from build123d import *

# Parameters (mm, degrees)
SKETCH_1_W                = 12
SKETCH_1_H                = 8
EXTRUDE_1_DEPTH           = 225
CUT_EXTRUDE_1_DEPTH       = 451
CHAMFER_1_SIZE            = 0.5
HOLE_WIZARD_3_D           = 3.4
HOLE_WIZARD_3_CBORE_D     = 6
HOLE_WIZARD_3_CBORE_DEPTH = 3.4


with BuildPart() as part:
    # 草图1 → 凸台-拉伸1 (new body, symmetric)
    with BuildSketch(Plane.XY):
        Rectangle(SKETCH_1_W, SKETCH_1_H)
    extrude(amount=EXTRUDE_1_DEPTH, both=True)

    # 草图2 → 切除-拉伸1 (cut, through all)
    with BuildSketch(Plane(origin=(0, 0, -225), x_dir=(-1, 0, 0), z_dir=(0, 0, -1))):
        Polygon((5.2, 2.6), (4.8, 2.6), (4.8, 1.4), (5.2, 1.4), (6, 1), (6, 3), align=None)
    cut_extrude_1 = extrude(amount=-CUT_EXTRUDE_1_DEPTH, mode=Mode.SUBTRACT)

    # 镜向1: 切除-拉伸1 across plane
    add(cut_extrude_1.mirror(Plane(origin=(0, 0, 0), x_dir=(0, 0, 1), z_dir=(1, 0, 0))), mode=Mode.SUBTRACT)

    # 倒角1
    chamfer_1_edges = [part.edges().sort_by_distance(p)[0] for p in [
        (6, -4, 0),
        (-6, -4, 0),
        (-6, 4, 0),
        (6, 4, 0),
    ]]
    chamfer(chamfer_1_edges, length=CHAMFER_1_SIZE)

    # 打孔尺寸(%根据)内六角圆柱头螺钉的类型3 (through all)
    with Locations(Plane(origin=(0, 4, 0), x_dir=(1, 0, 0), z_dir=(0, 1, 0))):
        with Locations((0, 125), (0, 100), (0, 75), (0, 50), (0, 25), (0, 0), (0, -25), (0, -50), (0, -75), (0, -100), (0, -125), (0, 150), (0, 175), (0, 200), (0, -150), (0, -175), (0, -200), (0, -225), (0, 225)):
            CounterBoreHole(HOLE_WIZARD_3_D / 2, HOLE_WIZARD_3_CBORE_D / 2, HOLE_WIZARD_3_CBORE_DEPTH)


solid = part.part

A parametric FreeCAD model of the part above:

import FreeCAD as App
import Part
import Sketcher
from FreeCAD import Vector


def edges_at(feature, points):
    """Names of the edges that pass closest to the given points."""
    edges = feature.Shape.Edges
    near = lambda p: min(range(len(edges)), key=lambda i: edges[i].distToShape(Part.Vertex(*p))[0])
    return sorted({f"Edge{near(p) + 1}" for p in points})

doc = App.newDocument("Part")
body = doc.addObject("PartDesign::Body", "Body")

# Sketch on XY plane
sketch1 = body.newObject("Sketcher::SketchObject", "Sketch")
sketch1.AttachmentSupport = (doc.getObject("XY_Plane"), [""])
sketch1.MapMode = "FlatFace"
sketch1.addGeometry([
    Part.LineSegment(Vector(-6, 4, 0), Vector(-6, -4, 0)),
    Part.LineSegment(Vector(-6, -4, 0), Vector(6, -4, 0)),
    Part.LineSegment(Vector(6, -4, 0), Vector(6, 4, 0)),
    Part.LineSegment(Vector(6, 4, 0), Vector(-6, 4, 0)),
], False)
sketch1.addConstraint([
    Sketcher.Constraint("Coincident", 0, 2, 1, 1),
    Sketcher.Constraint("Coincident", 1, 2, 2, 1),
    Sketcher.Constraint("Coincident", 2, 2, 3, 1),
    Sketcher.Constraint("Coincident", 3, 2, 0, 1),
    Sketcher.Constraint("Vertical", 0),
    Sketcher.Constraint("Horizontal", 1),
    Sketcher.Constraint("Vertical", 2),
    Sketcher.Constraint("Horizontal", 3),
    Sketcher.Constraint("Symmetric", 0, 2, 2, 2, -1, 1),
    Sketcher.Constraint("DistanceX", 1, 1, 1, 2, 12.0),
    Sketcher.Constraint("DistanceY", 0, 2, 0, 1, 8.0),
])
pad1 = body.newObject("PartDesign::Pad", "Pad")
pad1.Profile = sketch1
pad1.Length = 450
pad1.Midplane = True

# Sketch on XY plane
sketch2 = body.newObject("Sketcher::SketchObject", "Sketch001")
sketch2.AttachmentSupport = (doc.getObject("XY_Plane"), [""])
sketch2.MapMode = "FlatFace"
sketch2.AttachmentOffset = App.Placement(Vector(0, 0, -225), App.Rotation())
sketch2.addGeometry([
    Part.LineSegment(Vector(-5.2, 2.6, 0), Vector(-4.8, 2.6, 0)),  # 0
    Part.LineSegment(Vector(-4.8, 2.6, 0), Vector(-4.8, 1.4, 0)),  # 1
    Part.LineSegment(Vector(-4.8, 1.4, 0), Vector(-5.2, 1.4, 0)),  # 2
    Part.LineSegment(Vector(-5.2, 1.4, 0), Vector(-6, 1, 0)),  # 3
    Part.LineSegment(Vector(-6, 1, 0), Vector(-6, 3, 0)),  # 4
    Part.LineSegment(Vector(-6, 3, 0), Vector(-5.2, 2.6, 0)),  # 5
], False)
sketch2.addConstraint([
    Sketcher.Constraint("Coincident", 0, 2, 1, 1),
    Sketcher.Constraint("Coincident", 1, 2, 2, 1),
    Sketcher.Constraint("Coincident", 2, 2, 3, 1),
    Sketcher.Constraint("Coincident", 3, 2, 4, 1),
    Sketcher.Constraint("Coincident", 4, 2, 5, 1),
    Sketcher.Constraint("Coincident", 5, 2, 0, 1),
    Sketcher.Constraint("Horizontal", 0),
    Sketcher.Constraint("Vertical", 1),
    Sketcher.Constraint("Horizontal", 2),
    Sketcher.Constraint("Vertical", 4),
    Sketcher.Constraint("Vertical", 2, 2, 5, 2),
    Sketcher.Constraint("Equal", 3, 5),
    Sketcher.Constraint("DistanceY", 4, 1, 4, 2, 2.0),
    Sketcher.Constraint("DistanceX", 0, 1, 0, 2, 0.4),
    Sketcher.Constraint("DistanceY", 1, 2, 1, 1, 1.2),
    Sketcher.Constraint("DistanceX", 3, 2, -1, 1, 6.0),
    Sketcher.Constraint("DistanceY", -1, 1, 3, 2, 1.0),
    Sketcher.Constraint("DistanceX", 0, 2, -1, 1, 4.8),
])
pocket1 = body.newObject("PartDesign::Pocket", "Pocket")
pocket1.Profile = sketch2
pocket1.Type = "ThroughAll"
pocket1.Reversed = True
doc.recompute()

mirrored = body.newObject("PartDesign::Mirrored", "Mirrored")
mirrored.Originals = [pocket1]
mirrored.MirrorPlane = (doc.getObject("YZ_Plane"), [""])
body.Tip = mirrored
doc.recompute()

chamfer = body.newObject("PartDesign::Chamfer", "Chamfer")
chamfer.Base = (mirrored, edges_at(mirrored, [
    (6, -4, 0),
    (-6, -4, 0),
    (-6, 4, 0),
    (6, 4, 0),
]))
chamfer.Size = 0.5

# Sketch on XZ plane
sketch3 = body.newObject("Sketcher::SketchObject", "Sketch002")
sketch3.AttachmentSupport = (doc.getObject("XZ_Plane"), [""])
sketch3.MapMode = "FlatFace"
sketch3.AttachmentOffset = App.Placement(Vector(0, 0, -4), App.Rotation())
sketch3.addGeometry([
    Part.Circle(Vector(0, -125, 0), Vector(0, 0, 1), 1.7),  # 0
    Part.Circle(Vector(0, -100, 0), Vector(0, 0, 1), 1.7),  # 1
    Part.Circle(Vector(0, -75, 0), Vector(0, 0, 1), 1.7),  # 2
    Part.Circle(Vector(0, -50, 0), Vector(0, 0, 1), 1.7),  # 3
    Part.Circle(Vector(0, -25, 0), Vector(0, 0, 1), 1.7),  # 4
    Part.Circle(Vector(0, 0, 0), Vector(0, 0, 1), 1.7),  # 5
    Part.Circle(Vector(0, 25, 0), Vector(0, 0, 1), 1.7),  # 6
    Part.Circle(Vector(0, 50, 0), Vector(0, 0, 1), 1.7),  # 7
    Part.Circle(Vector(0, 75, 0), Vector(0, 0, 1), 1.7),  # 8
    Part.Circle(Vector(0, 100, 0), Vector(0, 0, 1), 1.7),  # 9
    Part.Circle(Vector(0, 125, 0), Vector(0, 0, 1), 1.7),  # 10
    Part.Circle(Vector(0, -150, 0), Vector(0, 0, 1), 1.7),  # 11
    Part.Circle(Vector(0, -175, 0), Vector(0, 0, 1), 1.7),  # 12
    Part.Circle(Vector(0, -200, 0), Vector(0, 0, 1), 1.7),  # 13
    Part.Circle(Vector(0, 150, 0), Vector(0, 0, 1), 1.7),  # 14
    Part.Circle(Vector(0, 175, 0), Vector(0, 0, 1), 1.7),  # 15
    Part.Circle(Vector(0, 200, 0), Vector(0, 0, 1), 1.7),  # 16
    Part.Circle(Vector(0, 225, 0), Vector(0, 0, 1), 1.7),  # 17
    Part.Circle(Vector(0, -225, 0), Vector(0, 0, 1), 1.7),  # 18
], False)
sketch3.addConstraint([
    Sketcher.Constraint("Coincident", 5, 3, -1, 1),
    Sketcher.Constraint("Equal", 0, 1),
    Sketcher.Constraint("Equal", 1, 2),
    Sketcher.Constraint("Equal", 2, 3),
    Sketcher.Constraint("Equal", 3, 4),
    Sketcher.Constraint("Equal", 4, 5),
    Sketcher.Constraint("Equal", 5, 6),
    Sketcher.Constraint("Equal", 6, 7),
    Sketcher.Constraint("Equal", 7, 8),
    Sketcher.Constraint("Equal", 8, 9),
    Sketcher.Constraint("Equal", 9, 10),
    Sketcher.Constraint("Equal", 10, 11),
    Sketcher.Constraint("Equal", 11, 12),
    Sketcher.Constraint("Equal", 12, 13),
    Sketcher.Constraint("Equal", 13, 14),
    Sketcher.Constraint("Equal", 14, 15),
    Sketcher.Constraint("Equal", 15, 16),
    Sketcher.Constraint("Equal", 16, 17),
    Sketcher.Constraint("Equal", 17, 18),
    Sketcher.Constraint("Symmetric", 4, 3, 6, 3, -1, 1),
    Sketcher.Constraint("Symmetric", 3, 3, 7, 3, -1, 1),
    Sketcher.Constraint("Symmetric", 2, 3, 8, 3, -1, 1),
    Sketcher.Constraint("Symmetric", 1, 3, 9, 3, -1, 1),
    Sketcher.Constraint("Symmetric", 0, 3, 10, 3, -1, 1),
    Sketcher.Constraint("Symmetric", 11, 3, 14, 3, -1, 1),
    Sketcher.Constraint("Symmetric", 12, 3, 15, 3, -1, 1),
    Sketcher.Constraint("Symmetric", 13, 3, 16, 3, -1, 1),
    Sketcher.Constraint("Symmetric", 17, 3, 18, 3, -1, 1),
    Sketcher.Constraint("PointOnObject", 0, 3, -2),
    Sketcher.Constraint("PointOnObject", 1, 3, -2),
    Sketcher.Constraint("PointOnObject", 2, 3, -2),
    Sketcher.Constraint("PointOnObject", 3, 3, -2),
    Sketcher.Constraint("PointOnObject", 4, 3, -2),
    Sketcher.Constraint("PointOnObject", 11, 3, -2),
    Sketcher.Constraint("PointOnObject", 12, 3, -2),
    Sketcher.Constraint("PointOnObject", 13, 3, -2),
    Sketcher.Constraint("PointOnObject", 17, 3, -2),
    Sketcher.Constraint("Diameter", 0, 3.4),
    Sketcher.Constraint("DistanceY", 0, 3, -1, 1, 125.0),
    Sketcher.Constraint("DistanceY", 1, 3, -1, 1, 100.0),
    Sketcher.Constraint("DistanceY", 2, 3, -1, 1, 75.0),
    Sketcher.Constraint("DistanceY", 3, 3, -1, 1, 50.0),
    Sketcher.Constraint("DistanceY", 4, 3, -1, 1, 25.0),
    Sketcher.Constraint("DistanceY", 11, 3, -1, 1, 150.0),
    Sketcher.Constraint("DistanceY", 12, 3, -1, 1, 175.0),
    Sketcher.Constraint("DistanceY", 13, 3, -1, 1, 200.0),
    Sketcher.Constraint("DistanceY", -1, 1, 17, 3, 225.0),
])
doc.recompute()
hole = body.newObject("PartDesign::Hole", "Hole")
hole.Profile = sketch3
hole.ThreadType = "None"
hole.Diameter = 3.4
hole.DepthType = "ThroughAll"
hole.HoleCutType = "Counterbore"
hole.HoleCutDiameter = 6
hole.HoleCutDepth = 3.4
hole.Reversed = True

doc.recompute()
